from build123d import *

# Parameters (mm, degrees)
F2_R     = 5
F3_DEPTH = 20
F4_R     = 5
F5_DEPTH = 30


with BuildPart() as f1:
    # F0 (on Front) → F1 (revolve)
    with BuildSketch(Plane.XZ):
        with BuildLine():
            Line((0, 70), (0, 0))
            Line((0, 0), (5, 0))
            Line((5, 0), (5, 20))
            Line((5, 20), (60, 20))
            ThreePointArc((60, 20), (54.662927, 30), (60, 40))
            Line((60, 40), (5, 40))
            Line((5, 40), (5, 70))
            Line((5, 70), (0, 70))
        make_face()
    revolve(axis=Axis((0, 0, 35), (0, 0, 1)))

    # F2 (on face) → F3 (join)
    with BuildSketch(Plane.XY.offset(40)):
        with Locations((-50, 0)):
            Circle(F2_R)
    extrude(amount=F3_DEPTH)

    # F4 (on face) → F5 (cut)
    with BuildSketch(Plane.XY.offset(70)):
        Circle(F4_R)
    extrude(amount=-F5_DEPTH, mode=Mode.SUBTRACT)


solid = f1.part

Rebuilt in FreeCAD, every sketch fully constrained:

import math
import FreeCAD as App
import Part
import Sketcher

V = App.Vector

doc = App.newDocument("Part")
body = doc.addObject("PartDesign::Body", "Body")

sketch1 = body.newObject("Sketcher::SketchObject", "Sketch")
sketch1.AttachmentSupport = (doc.getObject("XZ_Plane"), [""])
sketch1.MapMode = "FlatFace"
sketch1.addGeometry([
    Part.LineSegment(V(0, 70, 0), V(0, 0, 0)),
    Part.LineSegment(V(0, 0, 0), V(5, 0, 0)),
    Part.LineSegment(V(5, 0, 0), V(5, 20, 0)),
    Part.LineSegment(V(5, 20, 0), V(60, 20, 0)),
    Part.ArcOfCircle(Part.Circle(V(67, 30, 0), V(0, 0, 1), 12), math.radians(124), math.radians(236)),
    Part.LineSegment(V(60, 40, 0), V(5, 40, 0)),
    Part.LineSegment(V(5, 40, 0), V(5, 70, 0)),
    Part.LineSegment(V(5, 70, 0), V(0, 70, 0)),
], False)
sketch1.addConstraint([
    Sketcher.Constraint("Coincident", 0, 2, 1, 1),
    Sketcher.Constraint("Coincident", 1, 2, 2, 1),
    Sketcher.Constraint("Coincident", 2, 2, 3, 1),
    Sketcher.Constraint("Coincident", 3, 2, 4, 2),
    Sketcher.Constraint("Coincident", 4, 1, 5, 1),
    Sketcher.Constraint("Coincident", 5, 2, 6, 1),
    Sketcher.Constraint("Coincident", 6, 2, 7, 1),
    Sketcher.Constraint("Coincident", 7, 2, 0, 1),
    Sketcher.Constraint("Vertical", 0),
    Sketcher.Constraint("Horizontal", 1),
    Sketcher.Constraint("Vertical", 2),
    Sketcher.Constraint("Horizontal", 3),
    Sketcher.Constraint("Horizontal", 5),
    Sketcher.Constraint("Vertical", 6),
    Sketcher.Constraint("Horizontal", 7),
    Sketcher.Constraint("Coincident", 0, 2, -1, 1),
    Sketcher.Constraint("Vertical", 3, 2, 4, 1),
    Sketcher.Constraint("Vertical", 2, 2, 5, 2),
    Sketcher.Constraint("DistanceX", 1, 1, 1, 2, 5.0),
    Sketcher.Constraint("DistanceX", 3, 1, 3, 2, 55.0),
    Sketcher.Constraint("DistanceY", 0, 2, 0, 1, 70.0),
    Sketcher.Constraint("DistanceY", 2, 1, 2, 2, 20.0),
    Sketcher.Constraint("DistanceY", 6, 1, 6, 2, 30.0),
    Sketcher.Constraint("Radius", 4, 12.036967),
])
revolution = body.newObject("PartDesign::Revolution", "Revolution")
revolution.Profile = sketch1
revolution.ReferenceAxis = (sketch1, ["V_Axis"])
revolution.Angle = 360

sketch2 = body.newObject("Sketcher::SketchObject", "Sketch001")
sketch2.AttachmentSupport = (doc.getObject("XY_Plane"), [""])
sketch2.MapMode = "FlatFace"
sketch2.AttachmentOffset = App.Placement(V(0, 0, 40), App.Rotation())
sketch2.addGeometry(Part.Circle(V(-50, 0, 0), V(0, 0, 1), 5), False)
sketch2.addConstraint([
    Sketcher.Constraint("PointOnObject", 0, 3, -1),
    Sketcher.Constraint("Diameter", 0, 10.0),
    Sketcher.Constraint("DistanceX", 0, 3, -1, 1, 50.0),
])
pad1 = body.newObject("PartDesign::Pad", "Pad")
pad1.Profile = sketch2
pad1.Length = 20

sketch3 = body.newObject("Sketcher::SketchObject", "Sketch002")
sketch3.AttachmentSupport = (doc.getObject("XY_Plane"), [""])
sketch3.MapMode = "FlatFace"
sketch3.AttachmentOffset = App.Placement(V(0, 0, 70), App.Rotation())
sketch3.addGeometry(Part.Circle(V(0, 0, 0), V(0, 0, 1), 5), False)
sketch3.addConstraint([
    Sketcher.Constraint("Coincident", 0, 3, -1, 1),
    Sketcher.Constraint("Diameter", 0, 10.0),
])
pocket1 = body.newObject("PartDesign::Pocket", "Pocket")
pocket1.Profile = sketch3
pocket1.Length = 30

doc.recompute()
